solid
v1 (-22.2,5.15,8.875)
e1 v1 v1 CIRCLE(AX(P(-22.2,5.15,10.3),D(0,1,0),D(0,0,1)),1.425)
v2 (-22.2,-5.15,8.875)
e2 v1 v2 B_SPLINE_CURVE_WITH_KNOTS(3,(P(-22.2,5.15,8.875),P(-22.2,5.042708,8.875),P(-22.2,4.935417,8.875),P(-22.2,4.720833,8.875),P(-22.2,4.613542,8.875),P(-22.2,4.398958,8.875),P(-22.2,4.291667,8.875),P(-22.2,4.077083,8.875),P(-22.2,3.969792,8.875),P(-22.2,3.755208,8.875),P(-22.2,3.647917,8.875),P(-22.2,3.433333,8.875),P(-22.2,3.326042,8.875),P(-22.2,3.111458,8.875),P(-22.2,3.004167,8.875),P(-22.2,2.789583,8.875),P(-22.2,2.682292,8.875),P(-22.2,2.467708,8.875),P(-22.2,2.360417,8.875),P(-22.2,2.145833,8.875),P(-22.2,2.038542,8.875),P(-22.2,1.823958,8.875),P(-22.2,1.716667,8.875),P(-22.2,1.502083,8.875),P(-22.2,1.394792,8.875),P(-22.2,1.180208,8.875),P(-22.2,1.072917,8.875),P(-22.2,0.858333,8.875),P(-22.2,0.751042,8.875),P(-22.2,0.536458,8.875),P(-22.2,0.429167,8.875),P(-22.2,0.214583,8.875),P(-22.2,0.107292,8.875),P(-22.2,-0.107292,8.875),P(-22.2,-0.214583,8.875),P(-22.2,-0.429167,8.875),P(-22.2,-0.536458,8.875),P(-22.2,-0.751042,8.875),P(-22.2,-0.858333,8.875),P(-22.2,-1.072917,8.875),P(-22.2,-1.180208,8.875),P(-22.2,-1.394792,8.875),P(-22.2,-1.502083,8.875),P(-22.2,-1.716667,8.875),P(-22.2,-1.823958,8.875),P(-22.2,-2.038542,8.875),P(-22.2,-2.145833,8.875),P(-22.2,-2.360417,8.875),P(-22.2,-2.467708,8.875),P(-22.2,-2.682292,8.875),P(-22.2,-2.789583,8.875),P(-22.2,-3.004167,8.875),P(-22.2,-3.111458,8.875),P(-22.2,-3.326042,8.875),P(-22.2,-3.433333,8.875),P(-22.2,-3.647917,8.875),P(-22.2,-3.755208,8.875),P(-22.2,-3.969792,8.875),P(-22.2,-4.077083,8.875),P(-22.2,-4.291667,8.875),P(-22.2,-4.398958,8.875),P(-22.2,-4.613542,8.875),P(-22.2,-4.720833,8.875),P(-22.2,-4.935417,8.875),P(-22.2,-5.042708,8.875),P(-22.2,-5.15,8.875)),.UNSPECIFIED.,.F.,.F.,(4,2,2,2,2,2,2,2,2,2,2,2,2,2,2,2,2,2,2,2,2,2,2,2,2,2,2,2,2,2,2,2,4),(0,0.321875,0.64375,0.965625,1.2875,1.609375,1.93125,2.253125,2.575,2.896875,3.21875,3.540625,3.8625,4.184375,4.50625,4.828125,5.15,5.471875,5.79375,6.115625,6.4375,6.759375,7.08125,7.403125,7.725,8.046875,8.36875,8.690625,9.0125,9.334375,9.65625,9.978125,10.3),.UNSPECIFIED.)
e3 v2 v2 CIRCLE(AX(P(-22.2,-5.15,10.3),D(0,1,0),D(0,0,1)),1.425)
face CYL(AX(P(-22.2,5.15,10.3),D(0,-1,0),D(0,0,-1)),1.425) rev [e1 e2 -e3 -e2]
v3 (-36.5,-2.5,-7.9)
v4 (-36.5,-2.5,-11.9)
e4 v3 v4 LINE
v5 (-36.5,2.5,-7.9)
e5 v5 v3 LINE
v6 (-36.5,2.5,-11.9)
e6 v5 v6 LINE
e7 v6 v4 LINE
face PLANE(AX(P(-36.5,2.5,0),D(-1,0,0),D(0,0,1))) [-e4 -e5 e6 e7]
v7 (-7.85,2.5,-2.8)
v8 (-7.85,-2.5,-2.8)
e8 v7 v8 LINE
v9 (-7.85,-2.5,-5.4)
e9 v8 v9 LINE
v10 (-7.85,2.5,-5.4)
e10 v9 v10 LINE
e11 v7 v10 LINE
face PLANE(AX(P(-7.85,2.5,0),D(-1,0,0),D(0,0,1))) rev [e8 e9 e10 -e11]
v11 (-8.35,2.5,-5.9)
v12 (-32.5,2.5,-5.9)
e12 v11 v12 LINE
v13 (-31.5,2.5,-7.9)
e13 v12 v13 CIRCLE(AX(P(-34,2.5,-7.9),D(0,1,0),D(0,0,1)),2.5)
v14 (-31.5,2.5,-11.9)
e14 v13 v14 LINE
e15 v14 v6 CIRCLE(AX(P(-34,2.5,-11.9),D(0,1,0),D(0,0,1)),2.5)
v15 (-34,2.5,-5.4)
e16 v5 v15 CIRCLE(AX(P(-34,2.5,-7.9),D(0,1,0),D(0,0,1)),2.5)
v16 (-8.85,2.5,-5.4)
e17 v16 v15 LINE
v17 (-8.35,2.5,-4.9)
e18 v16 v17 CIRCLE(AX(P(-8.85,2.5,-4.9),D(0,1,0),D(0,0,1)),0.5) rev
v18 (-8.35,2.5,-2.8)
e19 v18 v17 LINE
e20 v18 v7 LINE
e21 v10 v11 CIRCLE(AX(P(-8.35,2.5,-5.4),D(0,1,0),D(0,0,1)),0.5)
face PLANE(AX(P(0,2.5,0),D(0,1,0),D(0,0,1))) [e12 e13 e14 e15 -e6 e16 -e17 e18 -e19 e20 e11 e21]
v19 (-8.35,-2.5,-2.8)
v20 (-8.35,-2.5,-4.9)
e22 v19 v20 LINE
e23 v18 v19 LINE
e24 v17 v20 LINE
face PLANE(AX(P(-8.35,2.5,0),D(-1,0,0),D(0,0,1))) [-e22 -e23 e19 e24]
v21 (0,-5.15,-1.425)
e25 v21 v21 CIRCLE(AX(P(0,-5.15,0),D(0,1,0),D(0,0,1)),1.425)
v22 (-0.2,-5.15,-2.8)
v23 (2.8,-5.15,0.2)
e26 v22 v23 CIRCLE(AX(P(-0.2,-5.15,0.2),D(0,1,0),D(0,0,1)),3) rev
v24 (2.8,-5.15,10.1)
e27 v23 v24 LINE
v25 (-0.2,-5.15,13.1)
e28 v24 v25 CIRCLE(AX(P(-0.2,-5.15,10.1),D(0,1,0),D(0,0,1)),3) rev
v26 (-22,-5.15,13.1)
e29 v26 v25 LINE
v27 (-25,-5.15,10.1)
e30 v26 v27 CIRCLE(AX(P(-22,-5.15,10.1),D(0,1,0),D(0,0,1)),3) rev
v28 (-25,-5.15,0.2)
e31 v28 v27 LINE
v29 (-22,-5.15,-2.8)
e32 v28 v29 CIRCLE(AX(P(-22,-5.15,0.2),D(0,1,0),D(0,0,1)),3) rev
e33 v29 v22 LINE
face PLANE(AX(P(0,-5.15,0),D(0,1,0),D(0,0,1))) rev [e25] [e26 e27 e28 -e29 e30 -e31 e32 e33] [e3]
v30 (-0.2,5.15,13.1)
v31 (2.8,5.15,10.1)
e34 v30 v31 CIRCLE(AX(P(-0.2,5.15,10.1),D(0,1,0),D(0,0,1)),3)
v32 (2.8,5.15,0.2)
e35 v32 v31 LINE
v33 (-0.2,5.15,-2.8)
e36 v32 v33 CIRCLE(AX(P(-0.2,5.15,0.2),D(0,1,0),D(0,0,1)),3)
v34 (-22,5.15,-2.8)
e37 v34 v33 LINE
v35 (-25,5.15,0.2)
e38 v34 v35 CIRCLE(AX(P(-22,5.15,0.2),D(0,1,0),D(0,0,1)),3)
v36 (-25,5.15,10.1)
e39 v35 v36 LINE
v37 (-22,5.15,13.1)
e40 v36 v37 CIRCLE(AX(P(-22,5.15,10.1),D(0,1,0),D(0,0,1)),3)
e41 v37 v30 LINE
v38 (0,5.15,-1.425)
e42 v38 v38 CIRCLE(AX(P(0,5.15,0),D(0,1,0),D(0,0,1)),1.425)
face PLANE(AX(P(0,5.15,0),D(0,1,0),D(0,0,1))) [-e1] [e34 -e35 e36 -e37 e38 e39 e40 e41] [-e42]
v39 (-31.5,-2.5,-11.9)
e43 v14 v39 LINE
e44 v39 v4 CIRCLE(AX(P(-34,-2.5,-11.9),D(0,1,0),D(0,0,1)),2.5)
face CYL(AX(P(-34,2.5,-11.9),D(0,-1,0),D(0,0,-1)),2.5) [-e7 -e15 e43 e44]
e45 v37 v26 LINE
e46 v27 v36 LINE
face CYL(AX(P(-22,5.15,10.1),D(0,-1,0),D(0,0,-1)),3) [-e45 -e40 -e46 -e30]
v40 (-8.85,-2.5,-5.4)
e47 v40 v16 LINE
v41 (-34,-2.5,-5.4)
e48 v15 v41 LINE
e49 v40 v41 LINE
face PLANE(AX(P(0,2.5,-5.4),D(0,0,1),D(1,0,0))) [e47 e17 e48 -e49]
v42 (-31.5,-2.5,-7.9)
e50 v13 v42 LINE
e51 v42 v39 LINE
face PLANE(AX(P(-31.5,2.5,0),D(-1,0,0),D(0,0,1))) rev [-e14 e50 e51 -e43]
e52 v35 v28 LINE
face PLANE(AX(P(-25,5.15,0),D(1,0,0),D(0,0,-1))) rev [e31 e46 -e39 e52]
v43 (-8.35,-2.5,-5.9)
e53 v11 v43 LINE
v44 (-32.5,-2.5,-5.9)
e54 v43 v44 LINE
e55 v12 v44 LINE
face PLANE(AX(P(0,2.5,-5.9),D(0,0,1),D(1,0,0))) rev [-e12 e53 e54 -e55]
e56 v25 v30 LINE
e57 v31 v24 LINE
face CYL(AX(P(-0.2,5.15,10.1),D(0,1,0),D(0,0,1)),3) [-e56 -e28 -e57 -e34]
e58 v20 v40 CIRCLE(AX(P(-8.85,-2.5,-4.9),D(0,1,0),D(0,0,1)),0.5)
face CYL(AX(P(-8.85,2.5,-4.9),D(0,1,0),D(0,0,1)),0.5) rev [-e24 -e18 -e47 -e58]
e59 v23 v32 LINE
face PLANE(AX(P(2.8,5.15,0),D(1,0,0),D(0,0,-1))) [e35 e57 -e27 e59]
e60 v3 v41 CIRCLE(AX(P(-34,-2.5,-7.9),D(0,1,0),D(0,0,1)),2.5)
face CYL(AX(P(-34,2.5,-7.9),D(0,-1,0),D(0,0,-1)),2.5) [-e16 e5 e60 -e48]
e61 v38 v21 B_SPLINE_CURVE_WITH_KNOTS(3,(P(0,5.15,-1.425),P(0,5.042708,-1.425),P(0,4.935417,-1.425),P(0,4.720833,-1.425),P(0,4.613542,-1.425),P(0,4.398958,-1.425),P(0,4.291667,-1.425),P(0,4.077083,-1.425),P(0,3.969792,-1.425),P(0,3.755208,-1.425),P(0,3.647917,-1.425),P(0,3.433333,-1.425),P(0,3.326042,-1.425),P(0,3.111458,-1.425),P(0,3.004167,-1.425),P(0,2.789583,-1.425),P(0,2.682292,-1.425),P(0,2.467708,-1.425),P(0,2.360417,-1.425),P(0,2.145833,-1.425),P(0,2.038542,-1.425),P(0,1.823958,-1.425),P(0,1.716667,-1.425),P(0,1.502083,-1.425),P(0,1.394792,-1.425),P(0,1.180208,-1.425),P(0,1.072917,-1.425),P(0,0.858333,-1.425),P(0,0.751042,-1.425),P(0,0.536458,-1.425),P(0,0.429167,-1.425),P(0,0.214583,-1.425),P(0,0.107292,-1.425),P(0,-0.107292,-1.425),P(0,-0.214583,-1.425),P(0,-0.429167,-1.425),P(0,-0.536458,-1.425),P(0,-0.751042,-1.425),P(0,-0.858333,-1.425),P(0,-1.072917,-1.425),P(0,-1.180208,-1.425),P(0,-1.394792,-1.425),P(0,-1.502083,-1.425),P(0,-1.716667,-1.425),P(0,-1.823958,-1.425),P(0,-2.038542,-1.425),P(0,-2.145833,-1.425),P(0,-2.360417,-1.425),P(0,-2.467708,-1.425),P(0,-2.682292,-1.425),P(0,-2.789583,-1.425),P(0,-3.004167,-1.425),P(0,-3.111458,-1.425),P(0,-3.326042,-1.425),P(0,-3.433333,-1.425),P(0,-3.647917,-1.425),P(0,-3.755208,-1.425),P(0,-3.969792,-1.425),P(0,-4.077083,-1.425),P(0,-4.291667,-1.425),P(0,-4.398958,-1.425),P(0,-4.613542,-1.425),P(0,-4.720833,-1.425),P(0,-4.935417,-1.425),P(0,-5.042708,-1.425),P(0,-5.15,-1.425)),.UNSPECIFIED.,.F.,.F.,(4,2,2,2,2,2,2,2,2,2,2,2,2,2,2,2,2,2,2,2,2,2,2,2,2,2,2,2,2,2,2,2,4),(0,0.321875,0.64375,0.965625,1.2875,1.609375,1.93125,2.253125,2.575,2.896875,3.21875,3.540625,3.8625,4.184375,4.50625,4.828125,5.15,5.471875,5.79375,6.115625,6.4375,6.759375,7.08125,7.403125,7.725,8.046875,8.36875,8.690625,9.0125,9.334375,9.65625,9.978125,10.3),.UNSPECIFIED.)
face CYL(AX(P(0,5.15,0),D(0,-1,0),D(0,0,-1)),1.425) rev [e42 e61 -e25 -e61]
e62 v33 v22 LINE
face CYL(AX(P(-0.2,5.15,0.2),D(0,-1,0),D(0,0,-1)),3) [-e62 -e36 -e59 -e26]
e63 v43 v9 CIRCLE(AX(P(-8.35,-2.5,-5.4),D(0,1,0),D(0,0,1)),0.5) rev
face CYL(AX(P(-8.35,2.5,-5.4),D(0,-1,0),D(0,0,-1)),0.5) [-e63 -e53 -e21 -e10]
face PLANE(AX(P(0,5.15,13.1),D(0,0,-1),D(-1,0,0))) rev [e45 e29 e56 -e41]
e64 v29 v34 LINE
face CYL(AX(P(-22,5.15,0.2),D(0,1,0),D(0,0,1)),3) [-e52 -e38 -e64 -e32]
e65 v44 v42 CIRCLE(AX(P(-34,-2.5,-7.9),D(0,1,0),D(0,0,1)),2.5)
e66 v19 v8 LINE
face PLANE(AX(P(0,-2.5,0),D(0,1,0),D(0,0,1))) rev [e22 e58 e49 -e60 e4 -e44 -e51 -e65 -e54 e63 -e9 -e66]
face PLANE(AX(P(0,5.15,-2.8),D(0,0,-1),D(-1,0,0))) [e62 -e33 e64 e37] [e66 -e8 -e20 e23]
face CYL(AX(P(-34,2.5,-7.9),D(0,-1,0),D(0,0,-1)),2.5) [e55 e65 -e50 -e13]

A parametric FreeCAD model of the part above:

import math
import FreeCAD as App
import Part
import Sketcher

V = App.Vector


def edges_at(feature, points):
    """Names of the edges that pass closest to the given points."""
    edges = feature.Shape.Edges
    near = lambda p: min(range(len(edges)), key=lambda i: edges[i].distToShape(Part.Vertex(*p))[0])
    return sorted({f"Edge{near(p) + 1}" for p in points})


def add_polygon(sketch, points):
    """Adds a closed chain of lines whose ends are joined by coincident constraints."""
    first, n = sketch.GeometryCount, len(points)
    for a, b in zip(points, points[1:] + points[:1]):
        sketch.addGeometry(Part.LineSegment(App.Vector(*a, 0), App.Vector(*b, 0)), False)
    for i in range(n):
        sketch.addConstraint(Sketcher.Constraint("Coincident", first + i, 2, first + (i + 1) % n, 1))

doc = App.newDocument("Part")
body = doc.addObject("PartDesign::Body", "Body")

# Sketch on XZ plane
sketch1 = doc.addObject("Sketcher::SketchObject", "Sketch")
body.addObject(sketch1)
sketch1.AttachmentSupport = (doc.XZ_Plane, [""])
sketch1.MapMode = "FlatFace"
add_polygon(sketch1, [(2.8, -2.8), (-25, -2.8), (-25, 13.1), (2.8, 13.1)])  # lines 0-3
sketch1.addGeometry(Part.Circle(V(-22.2, 10.3, 0), V(0, 0, 1), 1.425), False)  # 4
sketch1.addGeometry(Part.Circle(V(0, 0, 0), V(0, 0, 1), 1.425), False)  # 5
sketch1.addConstraint([
    Sketcher.Constraint("Horizontal", 0),
    Sketcher.Constraint("Vertical", 1),
    Sketcher.Constraint("Horizontal", 2),
    Sketcher.Constraint("Vertical", 3),
    Sketcher.Constraint("Coincident", 5, 3, -1, 1),
    Sketcher.Constraint("Equal", 4, 5),
    Sketcher.Constraint("Diameter", 4, 2.85),
    Sketcher.Constraint("DistanceX", 0, 2, 0, 1, 27.8),
    Sketcher.Constraint("DistanceY", 1, 1, 1, 2, 15.9),
    Sketcher.Constraint("DistanceX", 0, 2, -1, 1, 25.0),
    Sketcher.Constraint("DistanceX", 4, 3, 2, 2, 25.0),
    Sketcher.Constraint("DistanceY", -1, 1, 4, 3, 10.3),
    Sketcher.Constraint("DistanceY", 0, 2, -1, 1, 2.8),
])
pad1 = doc.addObject("PartDesign::Pad", "Pad")
body.addObject(pad1)
pad1.Profile = sketch1
pad1.Length = 10.3
pad1.Midplane = True
doc.recompute()

fillet = doc.addObject("PartDesign::Fillet", "Fillet")
body.addObject(fillet)
fillet.Base = (pad1, edges_at(pad1, [
    (2.8, 0, -2.8),
    (2.8, 0, 13.1),
    (-25, 0, 13.1),
    (-25, 0, -2.8),
]))
fillet.Radius = 3

# Sketch on XZ plane
sketch2 = doc.addObject("Sketcher::SketchObject", "Sketch001")
body.addObject(sketch2)
sketch2.AttachmentSupport = (doc.XZ_Plane, [""])
sketch2.MapMode = "FlatFace"
sketch2.addGeometry([
    Part.LineSegment(V(-8.35, -5.4, 0), V(-8.35, -2.8, 0)),  # 0
    Part.LineSegment(V(-8.35, -2.8, 0), V(-7.85, -2.8, 0)),  # 1
    Part.LineSegment(V(-7.85, -2.8, 0), V(-7.85, -5.9, 0)),  # 2
    Part.LineSegment(V(-7.85, -5.9, 0), V(-32.5, -5.9, 0)),  # 3
    Part.ArcOfCircle(Part.Circle(V(-34, -7.9, 0), V(0, 0, 1), 2.5), math.radians(0), math.radians(53.130102)),  # 4
    Part.LineSegment(V(-31.5, -7.9, 0), V(-31.5, -11.9, 0)),  # 5
    Part.ArcOfCircle(Part.Circle(V(-34, -11.9, 0), V(0, 0, 1), 2.5), math.radians(180), math.radians(360)),  # 6
    Part.LineSegment(V(-36.5, -11.9, 0), V(-36.5, -7.9, 0)),  # 7
    Part.ArcOfCircle(Part.Circle(V(-34, -7.9, 0), V(0, 0, 1), 2.5), math.radians(90), math.radians(180)),  # 8
    Part.LineSegment(V(-34, -5.4, 0), V(-8.35, -5.4, 0)),  # 9
], False)
sketch2.addConstraint([
    Sketcher.Constraint("Coincident", 0, 2, 1, 1),
    Sketcher.Constraint("Coincident", 1, 2, 2, 1),
    Sketcher.Constraint("Coincident", 2, 2, 3, 1),
    Sketcher.Constraint("Coincident", 3, 2, 4, 2),
    Sketcher.Constraint("Tangent", 4, 1, 5, 1),
    Sketcher.Constraint("Tangent", 5, 2, 6, 2),
    Sketcher.Constraint("Tangent", 6, 1, 7, 1),
    Sketcher.Constraint("Tangent", 7, 2, 8, 2),
    Sketcher.Constraint("Tangent", 8, 1, 9, 1),
    Sketcher.Constraint("Coincident", 9, 2, 0, 1),
    Sketcher.Constraint("Vertical", 0),
    Sketcher.Constraint("Horizontal", 1),
    Sketcher.Constraint("Vertical", 2),
    Sketcher.Constraint("Horizontal", 3),
    Sketcher.Constraint("Vertical", 5),
    Sketcher.Constraint("Vertical", 7),
    Sketcher.Constraint("Horizontal", 9),
    Sketcher.Constraint("Coincident", 8, 3, 4, 3),
    Sketcher.Constraint("Equal", 4, 6),
    Sketcher.Constraint("Radius", 4, 2.5),
    Sketcher.Constraint("DistanceY", 5, 2, 5, 1, 4.0),
    Sketcher.Constraint("DistanceX", 1, 1, 1, 2, 0.5),
    Sketcher.Constraint("DistanceY", 0, 1, 0, 2, 2.6),
    Sketcher.Constraint("DistanceY", 2, 2, 2, 1, 3.1),
    Sketcher.Constraint("DistanceX", 4, 3, -1, 1, 34.0),
    Sketcher.Constraint("DistanceX", 3, 2, 3, 1, 24.65),
    Sketcher.Constraint("DistanceY", 4, 3, -1, 1, 7.9),
])
pad2 = doc.addObject("PartDesign::Pad", "Pad001")
body.addObject(pad2)
pad2.Profile = sketch2
pad2.Length = 5
pad2.Midplane = True
doc.recompute()

fillet2 = doc.addObject("PartDesign::Fillet", "Fillet001")
body.addObject(fillet2)
fillet2.Base = (pad2, edges_at(pad2, [(-7.85, 0, -5.9), (-8.35, 0, -5.4)]))
fillet2.Radius = 0.5

doc.recompute()
